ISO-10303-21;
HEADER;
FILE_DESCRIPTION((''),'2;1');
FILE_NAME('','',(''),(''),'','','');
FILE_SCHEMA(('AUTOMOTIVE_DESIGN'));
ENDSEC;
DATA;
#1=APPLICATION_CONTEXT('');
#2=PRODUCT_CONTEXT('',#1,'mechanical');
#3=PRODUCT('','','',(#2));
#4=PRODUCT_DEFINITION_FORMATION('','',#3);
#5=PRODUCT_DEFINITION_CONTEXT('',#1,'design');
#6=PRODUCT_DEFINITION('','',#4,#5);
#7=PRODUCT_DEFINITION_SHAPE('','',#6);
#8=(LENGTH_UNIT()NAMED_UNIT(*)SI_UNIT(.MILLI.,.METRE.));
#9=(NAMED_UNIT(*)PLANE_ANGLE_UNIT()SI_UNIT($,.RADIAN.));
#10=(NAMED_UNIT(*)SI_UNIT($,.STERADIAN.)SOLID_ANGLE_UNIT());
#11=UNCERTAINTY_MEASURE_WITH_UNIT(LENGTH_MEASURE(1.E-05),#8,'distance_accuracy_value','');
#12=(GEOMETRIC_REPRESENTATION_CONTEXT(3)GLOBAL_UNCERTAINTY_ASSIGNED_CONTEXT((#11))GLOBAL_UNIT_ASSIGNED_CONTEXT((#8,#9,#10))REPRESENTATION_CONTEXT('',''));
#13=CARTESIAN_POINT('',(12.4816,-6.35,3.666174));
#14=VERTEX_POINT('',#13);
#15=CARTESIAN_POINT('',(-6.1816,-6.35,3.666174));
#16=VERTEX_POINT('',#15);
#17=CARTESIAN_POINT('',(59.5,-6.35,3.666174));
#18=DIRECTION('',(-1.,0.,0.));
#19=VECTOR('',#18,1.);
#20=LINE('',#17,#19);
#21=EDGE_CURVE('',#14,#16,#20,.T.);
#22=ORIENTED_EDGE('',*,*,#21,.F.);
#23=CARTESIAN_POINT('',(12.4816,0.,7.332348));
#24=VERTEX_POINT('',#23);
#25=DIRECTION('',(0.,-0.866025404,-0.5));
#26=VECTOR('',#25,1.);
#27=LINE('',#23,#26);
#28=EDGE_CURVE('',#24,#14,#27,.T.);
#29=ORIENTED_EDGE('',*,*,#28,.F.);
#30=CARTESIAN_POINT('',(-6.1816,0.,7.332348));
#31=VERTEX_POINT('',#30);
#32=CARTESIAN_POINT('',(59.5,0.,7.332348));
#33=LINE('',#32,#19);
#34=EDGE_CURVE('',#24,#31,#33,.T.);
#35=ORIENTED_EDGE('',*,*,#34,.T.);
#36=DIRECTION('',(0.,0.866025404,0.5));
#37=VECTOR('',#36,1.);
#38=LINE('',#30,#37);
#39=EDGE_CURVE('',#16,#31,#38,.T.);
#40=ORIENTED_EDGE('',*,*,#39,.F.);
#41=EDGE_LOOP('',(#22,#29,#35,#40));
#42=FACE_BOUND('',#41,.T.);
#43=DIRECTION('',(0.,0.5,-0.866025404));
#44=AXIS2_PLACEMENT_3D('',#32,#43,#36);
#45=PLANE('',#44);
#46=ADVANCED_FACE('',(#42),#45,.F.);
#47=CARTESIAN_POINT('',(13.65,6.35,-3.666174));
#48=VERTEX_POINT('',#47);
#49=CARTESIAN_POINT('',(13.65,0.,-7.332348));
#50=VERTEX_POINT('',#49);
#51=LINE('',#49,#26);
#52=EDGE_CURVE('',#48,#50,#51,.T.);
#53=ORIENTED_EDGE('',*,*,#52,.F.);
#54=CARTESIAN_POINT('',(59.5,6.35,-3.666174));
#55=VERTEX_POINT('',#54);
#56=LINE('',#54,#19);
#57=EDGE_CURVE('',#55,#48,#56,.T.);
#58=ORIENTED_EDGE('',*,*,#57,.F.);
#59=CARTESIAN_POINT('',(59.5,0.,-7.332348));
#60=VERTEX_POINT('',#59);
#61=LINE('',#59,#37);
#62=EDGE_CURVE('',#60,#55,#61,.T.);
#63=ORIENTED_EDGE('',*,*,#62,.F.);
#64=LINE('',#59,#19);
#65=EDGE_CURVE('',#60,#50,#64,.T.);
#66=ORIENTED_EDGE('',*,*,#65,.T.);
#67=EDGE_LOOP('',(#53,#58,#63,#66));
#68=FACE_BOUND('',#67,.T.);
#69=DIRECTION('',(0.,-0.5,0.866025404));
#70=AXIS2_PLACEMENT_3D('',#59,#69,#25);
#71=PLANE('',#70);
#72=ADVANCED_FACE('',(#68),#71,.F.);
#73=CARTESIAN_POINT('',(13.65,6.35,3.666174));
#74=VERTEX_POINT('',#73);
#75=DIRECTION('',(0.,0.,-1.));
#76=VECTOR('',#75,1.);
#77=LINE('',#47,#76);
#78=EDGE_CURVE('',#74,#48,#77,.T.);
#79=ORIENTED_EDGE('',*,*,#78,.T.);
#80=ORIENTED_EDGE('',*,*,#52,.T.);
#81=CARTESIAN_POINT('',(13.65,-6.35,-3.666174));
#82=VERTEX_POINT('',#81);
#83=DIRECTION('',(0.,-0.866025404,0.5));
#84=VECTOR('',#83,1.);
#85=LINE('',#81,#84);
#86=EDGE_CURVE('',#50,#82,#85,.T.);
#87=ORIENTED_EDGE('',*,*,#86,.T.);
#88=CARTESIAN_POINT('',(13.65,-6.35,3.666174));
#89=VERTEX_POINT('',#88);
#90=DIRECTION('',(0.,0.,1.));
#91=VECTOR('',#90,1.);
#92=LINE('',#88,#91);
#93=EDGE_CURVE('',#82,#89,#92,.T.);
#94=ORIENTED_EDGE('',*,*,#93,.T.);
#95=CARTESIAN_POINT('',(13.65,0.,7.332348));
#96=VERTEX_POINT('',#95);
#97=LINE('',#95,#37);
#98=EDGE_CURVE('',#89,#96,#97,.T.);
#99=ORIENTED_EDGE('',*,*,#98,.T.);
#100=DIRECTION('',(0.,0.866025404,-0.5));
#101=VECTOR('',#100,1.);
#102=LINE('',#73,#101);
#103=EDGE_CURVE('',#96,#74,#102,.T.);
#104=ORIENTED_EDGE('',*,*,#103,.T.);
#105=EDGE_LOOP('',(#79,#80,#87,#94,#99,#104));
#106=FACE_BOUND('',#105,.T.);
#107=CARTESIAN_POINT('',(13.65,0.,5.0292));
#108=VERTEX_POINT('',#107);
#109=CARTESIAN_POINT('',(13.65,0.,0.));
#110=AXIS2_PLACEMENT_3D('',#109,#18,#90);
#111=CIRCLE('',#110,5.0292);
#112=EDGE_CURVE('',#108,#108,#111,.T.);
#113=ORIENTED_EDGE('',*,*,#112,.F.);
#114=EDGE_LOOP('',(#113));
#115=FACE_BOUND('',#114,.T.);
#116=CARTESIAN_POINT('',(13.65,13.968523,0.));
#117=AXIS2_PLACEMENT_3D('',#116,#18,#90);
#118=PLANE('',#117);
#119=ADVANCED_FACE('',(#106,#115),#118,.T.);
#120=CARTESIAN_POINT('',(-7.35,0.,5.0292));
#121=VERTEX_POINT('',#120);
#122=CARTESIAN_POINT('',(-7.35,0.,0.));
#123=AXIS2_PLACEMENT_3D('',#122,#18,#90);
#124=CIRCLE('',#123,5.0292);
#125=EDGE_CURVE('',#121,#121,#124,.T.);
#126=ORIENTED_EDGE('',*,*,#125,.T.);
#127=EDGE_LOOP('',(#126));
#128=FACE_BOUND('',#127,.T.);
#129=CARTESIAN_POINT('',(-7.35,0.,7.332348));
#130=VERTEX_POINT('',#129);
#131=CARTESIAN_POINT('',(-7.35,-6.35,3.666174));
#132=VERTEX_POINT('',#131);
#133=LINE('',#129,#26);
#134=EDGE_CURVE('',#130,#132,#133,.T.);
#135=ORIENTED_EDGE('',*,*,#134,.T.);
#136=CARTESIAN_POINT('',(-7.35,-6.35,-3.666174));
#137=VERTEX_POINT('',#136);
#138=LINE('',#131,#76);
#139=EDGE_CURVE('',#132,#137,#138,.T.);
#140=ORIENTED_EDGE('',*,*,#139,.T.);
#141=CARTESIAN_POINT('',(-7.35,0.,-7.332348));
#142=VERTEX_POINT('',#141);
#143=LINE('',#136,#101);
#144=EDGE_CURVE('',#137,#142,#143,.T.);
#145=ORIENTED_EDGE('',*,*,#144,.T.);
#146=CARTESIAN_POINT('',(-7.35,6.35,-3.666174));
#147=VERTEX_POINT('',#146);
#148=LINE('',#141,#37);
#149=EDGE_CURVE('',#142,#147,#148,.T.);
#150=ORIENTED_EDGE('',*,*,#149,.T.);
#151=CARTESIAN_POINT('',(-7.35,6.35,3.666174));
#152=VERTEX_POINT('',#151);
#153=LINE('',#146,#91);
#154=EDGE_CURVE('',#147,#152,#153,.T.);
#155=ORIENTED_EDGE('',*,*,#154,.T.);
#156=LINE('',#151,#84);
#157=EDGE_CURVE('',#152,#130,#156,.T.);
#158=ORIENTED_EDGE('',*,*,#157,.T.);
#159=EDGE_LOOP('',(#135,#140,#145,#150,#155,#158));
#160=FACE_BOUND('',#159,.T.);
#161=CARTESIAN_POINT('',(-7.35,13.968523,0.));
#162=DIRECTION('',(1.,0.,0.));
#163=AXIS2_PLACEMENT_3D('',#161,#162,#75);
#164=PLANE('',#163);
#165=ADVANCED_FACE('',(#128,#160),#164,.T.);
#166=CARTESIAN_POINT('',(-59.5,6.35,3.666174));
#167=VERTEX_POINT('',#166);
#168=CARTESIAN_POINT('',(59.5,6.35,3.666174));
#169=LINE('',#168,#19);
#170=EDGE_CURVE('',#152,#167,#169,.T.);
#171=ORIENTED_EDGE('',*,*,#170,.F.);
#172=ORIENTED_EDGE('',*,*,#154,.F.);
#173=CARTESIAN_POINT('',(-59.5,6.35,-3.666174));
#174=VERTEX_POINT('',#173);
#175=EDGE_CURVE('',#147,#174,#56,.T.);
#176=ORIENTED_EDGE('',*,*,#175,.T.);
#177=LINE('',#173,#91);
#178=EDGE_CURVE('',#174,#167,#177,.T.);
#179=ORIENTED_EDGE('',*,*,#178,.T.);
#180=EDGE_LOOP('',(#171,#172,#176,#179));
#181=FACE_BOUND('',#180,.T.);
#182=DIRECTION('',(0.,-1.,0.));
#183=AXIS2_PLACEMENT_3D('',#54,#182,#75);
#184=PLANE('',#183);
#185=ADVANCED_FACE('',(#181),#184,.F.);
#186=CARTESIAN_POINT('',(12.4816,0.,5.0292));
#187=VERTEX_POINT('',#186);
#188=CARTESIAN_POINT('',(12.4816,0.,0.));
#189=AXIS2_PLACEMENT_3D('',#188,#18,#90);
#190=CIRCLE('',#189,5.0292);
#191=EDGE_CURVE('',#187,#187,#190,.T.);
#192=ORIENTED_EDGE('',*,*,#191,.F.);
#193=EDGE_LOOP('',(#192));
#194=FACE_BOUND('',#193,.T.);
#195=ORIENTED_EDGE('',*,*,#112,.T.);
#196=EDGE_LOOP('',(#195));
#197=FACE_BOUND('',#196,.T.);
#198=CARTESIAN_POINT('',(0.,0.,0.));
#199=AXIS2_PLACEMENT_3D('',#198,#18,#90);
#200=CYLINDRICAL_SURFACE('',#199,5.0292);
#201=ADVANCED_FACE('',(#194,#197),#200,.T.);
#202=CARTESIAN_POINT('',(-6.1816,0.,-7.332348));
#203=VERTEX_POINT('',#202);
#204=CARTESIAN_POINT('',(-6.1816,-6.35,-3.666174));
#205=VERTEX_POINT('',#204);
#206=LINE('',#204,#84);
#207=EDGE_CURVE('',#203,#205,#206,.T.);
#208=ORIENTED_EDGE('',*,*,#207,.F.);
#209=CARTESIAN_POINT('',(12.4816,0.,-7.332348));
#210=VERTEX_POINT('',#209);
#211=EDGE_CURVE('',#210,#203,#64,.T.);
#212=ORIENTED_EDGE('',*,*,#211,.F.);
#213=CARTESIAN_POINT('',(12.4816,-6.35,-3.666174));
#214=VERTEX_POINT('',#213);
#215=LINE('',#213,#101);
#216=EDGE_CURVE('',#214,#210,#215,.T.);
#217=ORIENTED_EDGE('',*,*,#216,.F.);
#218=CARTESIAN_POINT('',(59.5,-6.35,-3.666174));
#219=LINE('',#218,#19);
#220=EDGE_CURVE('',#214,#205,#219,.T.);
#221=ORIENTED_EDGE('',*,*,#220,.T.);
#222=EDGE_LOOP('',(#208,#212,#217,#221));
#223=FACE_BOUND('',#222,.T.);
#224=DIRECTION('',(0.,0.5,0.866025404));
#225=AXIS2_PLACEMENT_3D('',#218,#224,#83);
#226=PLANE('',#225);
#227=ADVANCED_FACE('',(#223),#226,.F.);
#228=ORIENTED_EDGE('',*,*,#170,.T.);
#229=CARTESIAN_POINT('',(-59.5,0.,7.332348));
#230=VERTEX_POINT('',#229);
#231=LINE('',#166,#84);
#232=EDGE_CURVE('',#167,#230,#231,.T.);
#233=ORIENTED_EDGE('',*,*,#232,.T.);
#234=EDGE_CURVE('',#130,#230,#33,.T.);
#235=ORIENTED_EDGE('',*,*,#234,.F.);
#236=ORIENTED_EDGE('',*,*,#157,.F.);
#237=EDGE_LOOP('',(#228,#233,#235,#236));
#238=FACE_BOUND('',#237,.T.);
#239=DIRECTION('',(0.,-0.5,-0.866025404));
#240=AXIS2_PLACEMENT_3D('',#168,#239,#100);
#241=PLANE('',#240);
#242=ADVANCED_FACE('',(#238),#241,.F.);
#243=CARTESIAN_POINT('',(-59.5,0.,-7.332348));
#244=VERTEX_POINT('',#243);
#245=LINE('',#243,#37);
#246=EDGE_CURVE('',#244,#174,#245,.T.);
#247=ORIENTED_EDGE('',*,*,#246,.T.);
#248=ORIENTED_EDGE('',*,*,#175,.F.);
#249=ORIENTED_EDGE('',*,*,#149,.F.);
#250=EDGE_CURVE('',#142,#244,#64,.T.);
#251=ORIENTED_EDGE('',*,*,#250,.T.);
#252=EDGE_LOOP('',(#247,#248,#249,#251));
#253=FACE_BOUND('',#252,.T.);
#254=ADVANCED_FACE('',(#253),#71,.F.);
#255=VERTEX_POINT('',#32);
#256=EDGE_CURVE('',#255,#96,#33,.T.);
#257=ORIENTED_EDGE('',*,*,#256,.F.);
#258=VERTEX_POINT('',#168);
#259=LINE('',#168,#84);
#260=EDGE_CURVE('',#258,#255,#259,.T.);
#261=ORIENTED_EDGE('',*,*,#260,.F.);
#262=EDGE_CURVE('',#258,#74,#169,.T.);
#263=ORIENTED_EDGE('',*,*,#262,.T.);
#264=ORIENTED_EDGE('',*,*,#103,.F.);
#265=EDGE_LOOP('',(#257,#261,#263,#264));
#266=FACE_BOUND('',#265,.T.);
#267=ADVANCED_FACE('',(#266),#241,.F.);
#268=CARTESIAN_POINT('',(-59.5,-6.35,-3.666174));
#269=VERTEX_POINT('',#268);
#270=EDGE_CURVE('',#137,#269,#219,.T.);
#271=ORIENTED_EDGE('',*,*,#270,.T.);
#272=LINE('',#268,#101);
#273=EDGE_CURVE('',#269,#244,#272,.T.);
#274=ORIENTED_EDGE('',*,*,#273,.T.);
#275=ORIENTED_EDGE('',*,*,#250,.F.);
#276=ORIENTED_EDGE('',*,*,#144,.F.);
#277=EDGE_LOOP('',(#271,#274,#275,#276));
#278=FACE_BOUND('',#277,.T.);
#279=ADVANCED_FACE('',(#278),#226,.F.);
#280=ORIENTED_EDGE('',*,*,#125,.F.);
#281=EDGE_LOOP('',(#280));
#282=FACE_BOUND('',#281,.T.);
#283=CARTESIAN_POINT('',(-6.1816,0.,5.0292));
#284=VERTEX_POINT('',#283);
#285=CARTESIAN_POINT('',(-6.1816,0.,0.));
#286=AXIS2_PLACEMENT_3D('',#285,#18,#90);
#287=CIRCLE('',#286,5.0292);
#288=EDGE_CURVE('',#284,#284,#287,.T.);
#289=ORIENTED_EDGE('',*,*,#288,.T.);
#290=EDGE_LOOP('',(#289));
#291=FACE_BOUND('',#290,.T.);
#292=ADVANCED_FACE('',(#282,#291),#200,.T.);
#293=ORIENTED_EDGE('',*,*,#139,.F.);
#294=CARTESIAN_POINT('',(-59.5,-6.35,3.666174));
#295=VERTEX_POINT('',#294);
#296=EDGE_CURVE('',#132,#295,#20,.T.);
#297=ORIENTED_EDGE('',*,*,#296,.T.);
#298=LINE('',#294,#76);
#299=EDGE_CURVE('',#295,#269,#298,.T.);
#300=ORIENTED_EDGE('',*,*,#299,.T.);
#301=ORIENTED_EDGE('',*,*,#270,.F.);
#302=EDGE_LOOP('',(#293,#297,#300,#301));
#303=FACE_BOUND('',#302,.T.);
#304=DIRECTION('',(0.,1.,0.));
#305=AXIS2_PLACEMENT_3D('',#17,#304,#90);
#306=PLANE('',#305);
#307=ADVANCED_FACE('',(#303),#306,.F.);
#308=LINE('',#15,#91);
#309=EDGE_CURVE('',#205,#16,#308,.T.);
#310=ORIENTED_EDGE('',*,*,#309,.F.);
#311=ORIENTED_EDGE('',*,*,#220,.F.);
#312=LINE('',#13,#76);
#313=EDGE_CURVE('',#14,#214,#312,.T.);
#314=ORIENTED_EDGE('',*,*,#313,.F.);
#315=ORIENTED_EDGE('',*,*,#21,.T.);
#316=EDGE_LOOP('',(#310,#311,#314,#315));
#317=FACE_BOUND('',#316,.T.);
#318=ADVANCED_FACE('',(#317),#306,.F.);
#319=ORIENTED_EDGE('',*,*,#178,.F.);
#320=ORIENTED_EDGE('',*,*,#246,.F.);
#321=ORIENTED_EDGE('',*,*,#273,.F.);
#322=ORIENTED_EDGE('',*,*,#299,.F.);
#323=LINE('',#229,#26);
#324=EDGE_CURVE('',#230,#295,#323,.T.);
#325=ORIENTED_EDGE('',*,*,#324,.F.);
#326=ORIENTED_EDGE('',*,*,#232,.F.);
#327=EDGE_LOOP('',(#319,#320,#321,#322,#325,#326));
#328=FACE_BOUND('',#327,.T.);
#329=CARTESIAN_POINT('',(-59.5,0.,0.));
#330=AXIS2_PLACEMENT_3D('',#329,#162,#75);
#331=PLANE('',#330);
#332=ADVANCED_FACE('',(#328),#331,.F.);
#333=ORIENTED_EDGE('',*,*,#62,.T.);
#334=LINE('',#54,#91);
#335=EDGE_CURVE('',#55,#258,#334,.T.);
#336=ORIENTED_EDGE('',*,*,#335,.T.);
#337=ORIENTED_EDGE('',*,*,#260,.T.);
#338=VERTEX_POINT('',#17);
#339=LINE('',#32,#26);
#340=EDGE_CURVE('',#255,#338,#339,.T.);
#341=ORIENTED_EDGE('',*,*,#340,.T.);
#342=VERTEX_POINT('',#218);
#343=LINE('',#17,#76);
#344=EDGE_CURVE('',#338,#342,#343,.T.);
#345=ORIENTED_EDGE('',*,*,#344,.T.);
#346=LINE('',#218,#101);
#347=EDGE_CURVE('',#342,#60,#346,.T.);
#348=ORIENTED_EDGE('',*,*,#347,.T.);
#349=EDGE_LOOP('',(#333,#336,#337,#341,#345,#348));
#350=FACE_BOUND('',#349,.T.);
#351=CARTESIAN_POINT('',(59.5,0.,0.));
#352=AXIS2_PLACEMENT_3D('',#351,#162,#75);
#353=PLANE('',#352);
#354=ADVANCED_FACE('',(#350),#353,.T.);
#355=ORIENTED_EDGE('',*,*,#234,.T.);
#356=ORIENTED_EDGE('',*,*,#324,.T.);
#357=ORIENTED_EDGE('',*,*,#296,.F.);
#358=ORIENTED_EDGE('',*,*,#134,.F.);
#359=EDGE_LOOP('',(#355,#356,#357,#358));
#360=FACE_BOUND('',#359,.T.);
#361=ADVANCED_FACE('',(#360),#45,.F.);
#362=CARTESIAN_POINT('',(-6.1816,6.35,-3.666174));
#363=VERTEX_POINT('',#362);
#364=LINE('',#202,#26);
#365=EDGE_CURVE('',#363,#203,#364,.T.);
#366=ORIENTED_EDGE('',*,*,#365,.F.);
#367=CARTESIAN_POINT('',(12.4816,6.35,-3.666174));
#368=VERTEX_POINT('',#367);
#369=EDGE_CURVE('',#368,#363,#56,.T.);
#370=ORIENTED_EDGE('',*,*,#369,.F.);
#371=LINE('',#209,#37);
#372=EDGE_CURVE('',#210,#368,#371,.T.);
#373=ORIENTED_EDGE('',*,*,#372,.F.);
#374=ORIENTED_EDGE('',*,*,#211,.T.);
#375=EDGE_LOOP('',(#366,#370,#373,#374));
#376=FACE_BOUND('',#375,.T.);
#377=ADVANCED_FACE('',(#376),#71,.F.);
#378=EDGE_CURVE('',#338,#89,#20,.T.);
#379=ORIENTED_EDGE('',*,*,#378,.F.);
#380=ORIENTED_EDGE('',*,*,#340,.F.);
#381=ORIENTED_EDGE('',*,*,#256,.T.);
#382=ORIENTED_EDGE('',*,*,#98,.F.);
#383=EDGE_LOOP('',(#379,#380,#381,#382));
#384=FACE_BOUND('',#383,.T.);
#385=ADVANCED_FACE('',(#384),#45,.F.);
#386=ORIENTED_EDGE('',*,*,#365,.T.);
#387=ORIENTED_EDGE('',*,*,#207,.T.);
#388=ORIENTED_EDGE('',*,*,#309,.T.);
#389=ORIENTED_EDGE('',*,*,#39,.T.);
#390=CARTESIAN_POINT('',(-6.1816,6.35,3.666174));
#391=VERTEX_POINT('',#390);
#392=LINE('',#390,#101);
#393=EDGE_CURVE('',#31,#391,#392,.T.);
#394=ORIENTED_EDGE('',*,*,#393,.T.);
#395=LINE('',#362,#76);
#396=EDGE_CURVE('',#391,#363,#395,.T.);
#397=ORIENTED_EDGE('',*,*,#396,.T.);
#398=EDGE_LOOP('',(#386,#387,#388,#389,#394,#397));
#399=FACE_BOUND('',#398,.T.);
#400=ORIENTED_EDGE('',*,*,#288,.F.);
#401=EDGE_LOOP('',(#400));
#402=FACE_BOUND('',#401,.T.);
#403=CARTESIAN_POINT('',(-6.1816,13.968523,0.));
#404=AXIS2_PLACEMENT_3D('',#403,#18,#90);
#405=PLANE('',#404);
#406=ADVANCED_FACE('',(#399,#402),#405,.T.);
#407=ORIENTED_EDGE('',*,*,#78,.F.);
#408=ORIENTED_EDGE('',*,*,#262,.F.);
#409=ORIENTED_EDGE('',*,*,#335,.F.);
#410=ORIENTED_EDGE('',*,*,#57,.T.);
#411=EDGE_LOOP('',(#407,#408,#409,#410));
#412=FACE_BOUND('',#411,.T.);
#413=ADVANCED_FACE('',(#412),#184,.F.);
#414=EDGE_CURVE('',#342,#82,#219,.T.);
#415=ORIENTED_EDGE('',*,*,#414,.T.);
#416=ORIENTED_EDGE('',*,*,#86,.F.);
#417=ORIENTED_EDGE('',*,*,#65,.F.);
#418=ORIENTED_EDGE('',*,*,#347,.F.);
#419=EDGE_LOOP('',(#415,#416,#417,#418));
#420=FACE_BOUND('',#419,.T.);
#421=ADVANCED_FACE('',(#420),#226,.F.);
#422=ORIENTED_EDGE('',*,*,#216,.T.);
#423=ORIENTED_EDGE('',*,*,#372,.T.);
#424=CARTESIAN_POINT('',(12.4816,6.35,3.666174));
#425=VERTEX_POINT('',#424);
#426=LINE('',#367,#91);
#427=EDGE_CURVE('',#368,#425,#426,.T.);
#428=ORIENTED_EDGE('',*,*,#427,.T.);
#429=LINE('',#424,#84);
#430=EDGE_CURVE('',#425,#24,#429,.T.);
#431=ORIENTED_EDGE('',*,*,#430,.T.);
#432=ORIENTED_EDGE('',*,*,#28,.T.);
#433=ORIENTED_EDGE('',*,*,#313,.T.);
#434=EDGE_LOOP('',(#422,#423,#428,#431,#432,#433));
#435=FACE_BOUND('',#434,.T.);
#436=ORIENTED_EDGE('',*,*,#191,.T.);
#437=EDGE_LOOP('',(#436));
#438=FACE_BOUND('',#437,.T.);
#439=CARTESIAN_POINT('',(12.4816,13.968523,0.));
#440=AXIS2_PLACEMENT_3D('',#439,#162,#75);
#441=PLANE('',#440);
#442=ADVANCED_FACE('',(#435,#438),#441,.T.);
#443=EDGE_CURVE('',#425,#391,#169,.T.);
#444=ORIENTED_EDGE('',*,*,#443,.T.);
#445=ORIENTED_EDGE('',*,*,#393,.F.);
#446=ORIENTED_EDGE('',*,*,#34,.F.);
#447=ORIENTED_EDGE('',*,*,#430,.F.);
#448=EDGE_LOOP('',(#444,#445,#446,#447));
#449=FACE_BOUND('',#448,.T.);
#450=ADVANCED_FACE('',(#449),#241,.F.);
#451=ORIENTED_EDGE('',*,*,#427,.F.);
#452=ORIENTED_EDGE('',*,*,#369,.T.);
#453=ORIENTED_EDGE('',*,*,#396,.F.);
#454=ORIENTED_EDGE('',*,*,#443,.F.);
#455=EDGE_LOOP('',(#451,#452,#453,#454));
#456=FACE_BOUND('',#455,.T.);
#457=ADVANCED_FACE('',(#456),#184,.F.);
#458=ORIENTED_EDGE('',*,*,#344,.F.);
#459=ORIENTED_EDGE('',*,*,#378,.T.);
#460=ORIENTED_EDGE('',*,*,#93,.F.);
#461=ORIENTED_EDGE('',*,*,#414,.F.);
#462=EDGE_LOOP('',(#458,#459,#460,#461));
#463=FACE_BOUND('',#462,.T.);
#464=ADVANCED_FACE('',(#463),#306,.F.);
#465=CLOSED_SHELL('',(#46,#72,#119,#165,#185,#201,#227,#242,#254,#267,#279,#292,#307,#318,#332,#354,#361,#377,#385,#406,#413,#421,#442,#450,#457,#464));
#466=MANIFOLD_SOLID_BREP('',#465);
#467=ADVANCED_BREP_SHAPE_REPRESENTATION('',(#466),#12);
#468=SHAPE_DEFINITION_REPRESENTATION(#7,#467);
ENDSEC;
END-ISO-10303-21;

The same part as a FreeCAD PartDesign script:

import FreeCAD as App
import Part
import Sketcher

V = App.Vector
Q = App.Units.Quantity

doc = App.newDocument("Part")
body = doc.addObject("PartDesign::Body", "Body")

sketch1 = body.newObject("Sketcher::SketchObject", "Sketch")
sketch1.AttachmentSupport = (doc.getObject("YZ_Plane"), [""])
sketch1.MapMode = "FlatFace"
sketch1.addGeometry(Part.LineSegment(V(0, -7, 0), V(6, -4, 0)), False)
sketch1.addGeometry(Part.LineSegment(V(6, -4, 0), V(6, 4, 0)), False)
sketch1.addGeometry(Part.LineSegment(V(6, 4, 0), V(0, 7, 0)), False)
sketch1.addGeometry(Part.LineSegment(V(0, 7, 0), V(-6, 4, 0)), False)
sketch1.addGeometry(Part.LineSegment(V(-6, 4, 0), V(-6, -4, 0)), False)
sketch1.addGeometry(Part.LineSegment(V(-6, -4, 0), V(0, -7, 0)), False)
sketch1.addConstraint(Sketcher.Constraint("Coincident", 0, 2, 1, 1))
sketch1.addConstraint(Sketcher.Constraint("Coincident", 1, 2, 2, 1))
sketch1.addConstraint(Sketcher.Constraint("Coincident", 2, 2, 3, 1))
sketch1.addConstraint(Sketcher.Constraint("Coincident", 3, 2, 4, 1))
sketch1.addConstraint(Sketcher.Constraint("Coincident", 4, 2, 5, 1))
sketch1.addConstraint(Sketcher.Constraint("Coincident", 5, 2, 0, 1))
sketch1.addConstraint(Sketcher.Constraint("Vertical", 1))
sketch1.addConstraint(Sketcher.Constraint("Vertical", 4))
sketch1.addConstraint(Sketcher.Constraint("Symmetric", 0, 2, 3, 2, -1, 1))
sketch1.addConstraint(Sketcher.Constraint("Symmetric", 2, 2, 5, 2, -1, 1))
sketch1.addConstraint(Sketcher.Constraint("PointOnObject", 2, 2, -2))
sketch1.addConstraint(Sketcher.Constraint("Parallel", 2, 5))
sketch1.addConstraint(Sketcher.Constraint("Horizontal", 1, 2, 3, 2))
sketch1.addConstraint(Sketcher.Constraint("Angle", 0, Q("30 deg")))
sketch1.addConstraint(Sketcher.Constraint("DistanceX", 3, 2, 1, 2, Q("12.7 mm")))
sketch1.addConstraint(Sketcher.Constraint("DistanceY", 1, 1, 1, 2, Q("7.332348 mm")))
pad1 = body.newObject("PartDesign::Pad", "Pad")
pad1.Profile = sketch1
pad1.Length = 119
pad1.Midplane = True

sketch2 = body.newObject("Sketcher::SketchObject", "Sketch001")
sketch2.AttachmentSupport = (doc.getObject("XY_Plane"), [""])
sketch2.MapMode = "FlatFace"
sketch2.addGeometry(Part.LineSegment(V(12.5, 14, 0), V(12.5, 5, 0)), False)
sketch2.addGeometry(Part.LineSegment(V(12.5, 5, 0), V(13.7, 5, 0)), False)
sketch2.addGeometry(Part.LineSegment(V(13.7, 5, 0), V(13.7, 14, 0)), False)
sketch2.addGeometry(Part.LineSegment(V(13.7, 14, 0), V(12.5, 14, 0)), False)
sketch2.addGeometry(Part.LineSegment(V(-7.3, 14, 0), V(-7.3, 5, 0)), False)
sketch2.addGeometry(Part.LineSegment(V(-7.3, 5, 0), V(-6.2, 5, 0)), False)
sketch2.addGeometry(Part.LineSegment(V(-6.2, 5, 0), V(-6.2, 14, 0)), False)
sketch2.addGeometry(Part.LineSegment(V(-6.2, 14, 0), V(-7.3, 14, 0)), False)
sketch2.addConstraint(Sketcher.Constraint("Coincident", 0, 2, 1, 1))
sketch2.addConstraint(Sketcher.Constraint("Coincident", 1, 2, 2, 1))
sketch2.addConstraint(Sketcher.Constraint("Coincident", 2, 2, 3, 1))
sketch2.addConstraint(Sketcher.Constraint("Coincident", 3, 2, 0, 1))
sketch2.addConstraint(Sketcher.Constraint("Coincident", 4, 2, 5, 1))
sketch2.addConstraint(Sketcher.Constraint("Coincident", 5, 2, 6, 1))
sketch2.addConstraint(Sketcher.Constraint("Coincident", 6, 2, 7, 1))
sketch2.addConstraint(Sketcher.Constraint("Coincident", 7, 2, 4, 1))
sketch2.addConstraint(Sketcher.Constraint("Vertical", 0))
sketch2.addConstraint(Sketcher.Constraint("Horizontal", 1))
sketch2.addConstraint(Sketcher.Constraint("Vertical", 2))
sketch2.addConstraint(Sketcher.Constraint("Horizontal", 3))
sketch2.addConstraint(Sketcher.Constraint("Vertical", 4))
sketch2.addConstraint(Sketcher.Constraint("Horizontal", 5))
sketch2.addConstraint(Sketcher.Constraint("Vertical", 6))
sketch2.addConstraint(Sketcher.Constraint("Horizontal", 7))
sketch2.addConstraint(Sketcher.Constraint("Horizontal", 1, 2, 4, 2))
sketch2.addConstraint(Sketcher.Constraint("Horizontal", 3, 2, 6, 2))
sketch2.addConstraint(Sketcher.Constraint("Equal", 3, 5))
sketch2.addConstraint(Sketcher.Constraint("DistanceX", 4, 2, 1, 2, Q("21 mm")))
sketch2.addConstraint(Sketcher.Constraint("DistanceX", -1, 1, 1, 2, Q("13.65 mm")))
sketch2.addConstraint(Sketcher.Constraint("DistanceX", 1, 1, 1, 2, Q("1.1684 mm")))
sketch2.addConstraint(Sketcher.Constraint("DistanceY", -1, 1, 0, 2, Q("5.0292 mm")))
sketch2.addConstraint(Sketcher.Constraint("DistanceY", 0, 2, 0, 1, Q("8.939323 mm")))
groove = body.newObject("PartDesign::Groove", "Groove")
groove.Profile = sketch2
groove.ReferenceAxis = (sketch2, ["H_Axis"])
groove.Angle = 360

doc.recompute()
